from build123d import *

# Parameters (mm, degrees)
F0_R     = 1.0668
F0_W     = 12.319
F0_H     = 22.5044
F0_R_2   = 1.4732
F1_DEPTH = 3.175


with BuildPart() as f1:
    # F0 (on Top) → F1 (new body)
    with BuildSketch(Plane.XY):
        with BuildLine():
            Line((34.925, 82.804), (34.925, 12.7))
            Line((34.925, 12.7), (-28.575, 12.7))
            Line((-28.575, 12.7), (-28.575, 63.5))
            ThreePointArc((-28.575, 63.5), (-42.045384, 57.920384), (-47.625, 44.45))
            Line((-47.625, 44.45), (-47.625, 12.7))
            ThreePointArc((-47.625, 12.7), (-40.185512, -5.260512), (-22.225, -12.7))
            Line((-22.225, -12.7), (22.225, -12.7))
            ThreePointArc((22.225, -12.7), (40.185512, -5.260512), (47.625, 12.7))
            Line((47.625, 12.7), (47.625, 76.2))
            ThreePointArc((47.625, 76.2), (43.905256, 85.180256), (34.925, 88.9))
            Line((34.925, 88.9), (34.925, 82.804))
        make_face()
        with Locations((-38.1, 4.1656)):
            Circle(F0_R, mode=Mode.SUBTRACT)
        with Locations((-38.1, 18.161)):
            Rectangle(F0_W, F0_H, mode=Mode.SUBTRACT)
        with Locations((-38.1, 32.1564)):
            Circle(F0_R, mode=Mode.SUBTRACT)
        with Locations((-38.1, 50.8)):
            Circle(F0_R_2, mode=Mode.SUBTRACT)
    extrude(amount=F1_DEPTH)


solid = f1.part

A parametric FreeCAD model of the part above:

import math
import FreeCAD as App
import Part
import Sketcher
from FreeCAD import Vector
Q = App.Units.Quantity

doc = App.newDocument("Part")
body = doc.addObject("PartDesign::Body", "Body")

sketch1 = body.newObject("Sketcher::SketchObject", "Sketch")
sketch1.AttachmentSupport = (doc.getObject("XY_Plane"), [""])
sketch1.MapMode = "FlatFace"
sketch1.addGeometry([
    Part.LineSegment(Vector(34.925, 12.7, 0), Vector(-28.575, 12.7, 0)),
    Part.LineSegment(Vector(-28.575, 12.7, 0), Vector(-28.575, 63.5, 0)),
    Part.ArcOfCircle(Part.Circle(Vector(-28.574999, 44.449999, 0), Vector(0, 0, 1), 19.050001), math.radians(90.000002), math.radians(179.999998)),
    Part.LineSegment(Vector(-47.625, 44.45, 0), Vector(-47.625, 12.7, 0)),
    Part.ArcOfCircle(Part.Circle(Vector(-22.224999, 12.700001, 0), Vector(0, 0, 1), 25.400001), math.radians(-179.999998), math.radians(-90.000002)),
    Part.LineSegment(Vector(-22.225, -12.7, 0), Vector(22.225, -12.7, 0)),
    Part.ArcOfCircle(Part.Circle(Vector(22.224999, 12.700001, 0), Vector(0, 0, 1), 25.400001), math.radians(-89.999998), math.radians(-0.000002)),
    Part.LineSegment(Vector(47.625, 12.7, 0), Vector(47.625, 76.2, 0)),
    Part.ArcOfCircle(Part.Circle(Vector(34.925, 76.2, 0), Vector(0, 0, 1), 12.7), math.radians(0.000002), math.radians(89.999998)),
    Part.LineSegment(Vector(34.925, 88.9, 0), Vector(34.925, 12.7, 0)),
    Part.Circle(Vector(-38.1, 4.1656, 0), Vector(0, 0, 1), 1.0668),
    Part.LineSegment(Vector(-31.9405, 6.9088, 0), Vector(-44.2595, 6.9088, 0)),
    Part.LineSegment(Vector(-44.2595, 6.9088, 0), Vector(-44.2595, 29.4132, 0)),
    Part.LineSegment(Vector(-44.2595, 29.4132, 0), Vector(-31.9405, 29.4132, 0)),
    Part.LineSegment(Vector(-31.9405, 29.4132, 0), Vector(-31.9405, 6.9088, 0)),
    Part.Circle(Vector(-38.1, 32.1564, 0), Vector(0, 0, 1), 1.0668),
    Part.Circle(Vector(-38.1, 50.8, 0), Vector(0, 0, 1), 1.4732),
], False)
sketch1.addConstraint([
    Sketcher.Constraint("Coincident", 0, 2, 1, 1),
    Sketcher.Constraint("Coincident", 1, 2, 2, 1),
    Sketcher.Constraint("Tangent", 2, 2, 3, 1),
    Sketcher.Constraint("Tangent", 3, 2, 4, 1),
    Sketcher.Constraint("Tangent", 4, 2, 5, 1),
    Sketcher.Constraint("Tangent", 5, 2, 6, 1),
    Sketcher.Constraint("Tangent", 6, 2, 7, 1),
    Sketcher.Constraint("Tangent", 7, 2, 8, 1),
    Sketcher.Constraint("Coincident", 8, 2, 9, 1),
    Sketcher.Constraint("Coincident", 9, 2, 0, 1),
    Sketcher.Constraint("Coincident", 11, 2, 12, 1),
    Sketcher.Constraint("Coincident", 12, 2, 13, 1),
    Sketcher.Constraint("Coincident", 13, 2, 14, 1),
    Sketcher.Constraint("Coincident", 14, 2, 11, 1),
    Sketcher.Constraint("Horizontal", 0),
    Sketcher.Constraint("Vertical", 1),
    Sketcher.Constraint("Vertical", 3),
    Sketcher.Constraint("Horizontal", 5),
    Sketcher.Constraint("Vertical", 7),
    Sketcher.Constraint("Vertical", 9),
    Sketcher.Constraint("Horizontal", 11),
    Sketcher.Constraint("Vertical", 12),
    Sketcher.Constraint("Horizontal", 13),
    Sketcher.Constraint("Vertical", 14),
    Sketcher.Constraint("Equal", 4, 6),
    Sketcher.Constraint("Equal", 10, 15),
    Sketcher.Constraint("Horizontal", 6, 3, 0, 2),
    Sketcher.Constraint("Vertical", 10, 3, 15, 3),
    Sketcher.Constraint("Vertical", 15, 3, 16, 3),
    Sketcher.Constraint("Vertical", 2, 3, 0, 2),
    Sketcher.Constraint("Equal", 0, 7),
    Sketcher.Constraint("Radius", 4, Q("1 in")),
    Sketcher.Constraint("Radius", 8, Q("0.5 in")),
    Sketcher.Constraint("DistanceY", 1, 1, 1, 2, Q("2 in")),
    Sketcher.Constraint("DistanceY", 9, 2, 9, 1, Q("3 in")),
    Sketcher.Constraint("Radius", 2, Q("0.75 in")),
    Sketcher.Constraint("Diameter", 10, Q("0.084 in")),
    Sketcher.Constraint("Diameter", 16, Q("0.116 in")),
    Sketcher.Constraint("DistanceY", -1, 1, 8, 3, Q("3 in")),
    Sketcher.Constraint("DistanceY", -1, 1, 16, 3, Q("2 in")),
    Sketcher.Constraint("DistanceX", 2, 3, 6, 3, Q("1.9999999 in")),
    Sketcher.Constraint("DistanceX", 10, 3, -1, 1, Q("1.5 in")),
    Sketcher.Constraint("DistanceX", 11, 2, 11, 1, Q("0.485 in")),
    Sketcher.Constraint("DistanceY", 12, 1, 12, 2, Q("0.886 in")),
    Sketcher.Constraint("DistanceX", 2, 3, -1, 1, Q("1.125 in")),
    Sketcher.Constraint("DistanceY", -1, 1, 10, 3, Q("0.164 in")),
    Sketcher.Constraint("DistanceY", -1, 1, 15, 3, Q("1.266 in")),
    Sketcher.Constraint("DistanceY", -1, 1, 11, 2, Q("0.272 in")),
    Sketcher.Constraint("DistanceX", 11, 2, -1, 1, Q("1.7425 in")),
])
pad1 = body.newObject("PartDesign::Pad", "Pad")
pad1.Profile = sketch1
pad1.Length = Q("0.125 in")

doc.recompute()
